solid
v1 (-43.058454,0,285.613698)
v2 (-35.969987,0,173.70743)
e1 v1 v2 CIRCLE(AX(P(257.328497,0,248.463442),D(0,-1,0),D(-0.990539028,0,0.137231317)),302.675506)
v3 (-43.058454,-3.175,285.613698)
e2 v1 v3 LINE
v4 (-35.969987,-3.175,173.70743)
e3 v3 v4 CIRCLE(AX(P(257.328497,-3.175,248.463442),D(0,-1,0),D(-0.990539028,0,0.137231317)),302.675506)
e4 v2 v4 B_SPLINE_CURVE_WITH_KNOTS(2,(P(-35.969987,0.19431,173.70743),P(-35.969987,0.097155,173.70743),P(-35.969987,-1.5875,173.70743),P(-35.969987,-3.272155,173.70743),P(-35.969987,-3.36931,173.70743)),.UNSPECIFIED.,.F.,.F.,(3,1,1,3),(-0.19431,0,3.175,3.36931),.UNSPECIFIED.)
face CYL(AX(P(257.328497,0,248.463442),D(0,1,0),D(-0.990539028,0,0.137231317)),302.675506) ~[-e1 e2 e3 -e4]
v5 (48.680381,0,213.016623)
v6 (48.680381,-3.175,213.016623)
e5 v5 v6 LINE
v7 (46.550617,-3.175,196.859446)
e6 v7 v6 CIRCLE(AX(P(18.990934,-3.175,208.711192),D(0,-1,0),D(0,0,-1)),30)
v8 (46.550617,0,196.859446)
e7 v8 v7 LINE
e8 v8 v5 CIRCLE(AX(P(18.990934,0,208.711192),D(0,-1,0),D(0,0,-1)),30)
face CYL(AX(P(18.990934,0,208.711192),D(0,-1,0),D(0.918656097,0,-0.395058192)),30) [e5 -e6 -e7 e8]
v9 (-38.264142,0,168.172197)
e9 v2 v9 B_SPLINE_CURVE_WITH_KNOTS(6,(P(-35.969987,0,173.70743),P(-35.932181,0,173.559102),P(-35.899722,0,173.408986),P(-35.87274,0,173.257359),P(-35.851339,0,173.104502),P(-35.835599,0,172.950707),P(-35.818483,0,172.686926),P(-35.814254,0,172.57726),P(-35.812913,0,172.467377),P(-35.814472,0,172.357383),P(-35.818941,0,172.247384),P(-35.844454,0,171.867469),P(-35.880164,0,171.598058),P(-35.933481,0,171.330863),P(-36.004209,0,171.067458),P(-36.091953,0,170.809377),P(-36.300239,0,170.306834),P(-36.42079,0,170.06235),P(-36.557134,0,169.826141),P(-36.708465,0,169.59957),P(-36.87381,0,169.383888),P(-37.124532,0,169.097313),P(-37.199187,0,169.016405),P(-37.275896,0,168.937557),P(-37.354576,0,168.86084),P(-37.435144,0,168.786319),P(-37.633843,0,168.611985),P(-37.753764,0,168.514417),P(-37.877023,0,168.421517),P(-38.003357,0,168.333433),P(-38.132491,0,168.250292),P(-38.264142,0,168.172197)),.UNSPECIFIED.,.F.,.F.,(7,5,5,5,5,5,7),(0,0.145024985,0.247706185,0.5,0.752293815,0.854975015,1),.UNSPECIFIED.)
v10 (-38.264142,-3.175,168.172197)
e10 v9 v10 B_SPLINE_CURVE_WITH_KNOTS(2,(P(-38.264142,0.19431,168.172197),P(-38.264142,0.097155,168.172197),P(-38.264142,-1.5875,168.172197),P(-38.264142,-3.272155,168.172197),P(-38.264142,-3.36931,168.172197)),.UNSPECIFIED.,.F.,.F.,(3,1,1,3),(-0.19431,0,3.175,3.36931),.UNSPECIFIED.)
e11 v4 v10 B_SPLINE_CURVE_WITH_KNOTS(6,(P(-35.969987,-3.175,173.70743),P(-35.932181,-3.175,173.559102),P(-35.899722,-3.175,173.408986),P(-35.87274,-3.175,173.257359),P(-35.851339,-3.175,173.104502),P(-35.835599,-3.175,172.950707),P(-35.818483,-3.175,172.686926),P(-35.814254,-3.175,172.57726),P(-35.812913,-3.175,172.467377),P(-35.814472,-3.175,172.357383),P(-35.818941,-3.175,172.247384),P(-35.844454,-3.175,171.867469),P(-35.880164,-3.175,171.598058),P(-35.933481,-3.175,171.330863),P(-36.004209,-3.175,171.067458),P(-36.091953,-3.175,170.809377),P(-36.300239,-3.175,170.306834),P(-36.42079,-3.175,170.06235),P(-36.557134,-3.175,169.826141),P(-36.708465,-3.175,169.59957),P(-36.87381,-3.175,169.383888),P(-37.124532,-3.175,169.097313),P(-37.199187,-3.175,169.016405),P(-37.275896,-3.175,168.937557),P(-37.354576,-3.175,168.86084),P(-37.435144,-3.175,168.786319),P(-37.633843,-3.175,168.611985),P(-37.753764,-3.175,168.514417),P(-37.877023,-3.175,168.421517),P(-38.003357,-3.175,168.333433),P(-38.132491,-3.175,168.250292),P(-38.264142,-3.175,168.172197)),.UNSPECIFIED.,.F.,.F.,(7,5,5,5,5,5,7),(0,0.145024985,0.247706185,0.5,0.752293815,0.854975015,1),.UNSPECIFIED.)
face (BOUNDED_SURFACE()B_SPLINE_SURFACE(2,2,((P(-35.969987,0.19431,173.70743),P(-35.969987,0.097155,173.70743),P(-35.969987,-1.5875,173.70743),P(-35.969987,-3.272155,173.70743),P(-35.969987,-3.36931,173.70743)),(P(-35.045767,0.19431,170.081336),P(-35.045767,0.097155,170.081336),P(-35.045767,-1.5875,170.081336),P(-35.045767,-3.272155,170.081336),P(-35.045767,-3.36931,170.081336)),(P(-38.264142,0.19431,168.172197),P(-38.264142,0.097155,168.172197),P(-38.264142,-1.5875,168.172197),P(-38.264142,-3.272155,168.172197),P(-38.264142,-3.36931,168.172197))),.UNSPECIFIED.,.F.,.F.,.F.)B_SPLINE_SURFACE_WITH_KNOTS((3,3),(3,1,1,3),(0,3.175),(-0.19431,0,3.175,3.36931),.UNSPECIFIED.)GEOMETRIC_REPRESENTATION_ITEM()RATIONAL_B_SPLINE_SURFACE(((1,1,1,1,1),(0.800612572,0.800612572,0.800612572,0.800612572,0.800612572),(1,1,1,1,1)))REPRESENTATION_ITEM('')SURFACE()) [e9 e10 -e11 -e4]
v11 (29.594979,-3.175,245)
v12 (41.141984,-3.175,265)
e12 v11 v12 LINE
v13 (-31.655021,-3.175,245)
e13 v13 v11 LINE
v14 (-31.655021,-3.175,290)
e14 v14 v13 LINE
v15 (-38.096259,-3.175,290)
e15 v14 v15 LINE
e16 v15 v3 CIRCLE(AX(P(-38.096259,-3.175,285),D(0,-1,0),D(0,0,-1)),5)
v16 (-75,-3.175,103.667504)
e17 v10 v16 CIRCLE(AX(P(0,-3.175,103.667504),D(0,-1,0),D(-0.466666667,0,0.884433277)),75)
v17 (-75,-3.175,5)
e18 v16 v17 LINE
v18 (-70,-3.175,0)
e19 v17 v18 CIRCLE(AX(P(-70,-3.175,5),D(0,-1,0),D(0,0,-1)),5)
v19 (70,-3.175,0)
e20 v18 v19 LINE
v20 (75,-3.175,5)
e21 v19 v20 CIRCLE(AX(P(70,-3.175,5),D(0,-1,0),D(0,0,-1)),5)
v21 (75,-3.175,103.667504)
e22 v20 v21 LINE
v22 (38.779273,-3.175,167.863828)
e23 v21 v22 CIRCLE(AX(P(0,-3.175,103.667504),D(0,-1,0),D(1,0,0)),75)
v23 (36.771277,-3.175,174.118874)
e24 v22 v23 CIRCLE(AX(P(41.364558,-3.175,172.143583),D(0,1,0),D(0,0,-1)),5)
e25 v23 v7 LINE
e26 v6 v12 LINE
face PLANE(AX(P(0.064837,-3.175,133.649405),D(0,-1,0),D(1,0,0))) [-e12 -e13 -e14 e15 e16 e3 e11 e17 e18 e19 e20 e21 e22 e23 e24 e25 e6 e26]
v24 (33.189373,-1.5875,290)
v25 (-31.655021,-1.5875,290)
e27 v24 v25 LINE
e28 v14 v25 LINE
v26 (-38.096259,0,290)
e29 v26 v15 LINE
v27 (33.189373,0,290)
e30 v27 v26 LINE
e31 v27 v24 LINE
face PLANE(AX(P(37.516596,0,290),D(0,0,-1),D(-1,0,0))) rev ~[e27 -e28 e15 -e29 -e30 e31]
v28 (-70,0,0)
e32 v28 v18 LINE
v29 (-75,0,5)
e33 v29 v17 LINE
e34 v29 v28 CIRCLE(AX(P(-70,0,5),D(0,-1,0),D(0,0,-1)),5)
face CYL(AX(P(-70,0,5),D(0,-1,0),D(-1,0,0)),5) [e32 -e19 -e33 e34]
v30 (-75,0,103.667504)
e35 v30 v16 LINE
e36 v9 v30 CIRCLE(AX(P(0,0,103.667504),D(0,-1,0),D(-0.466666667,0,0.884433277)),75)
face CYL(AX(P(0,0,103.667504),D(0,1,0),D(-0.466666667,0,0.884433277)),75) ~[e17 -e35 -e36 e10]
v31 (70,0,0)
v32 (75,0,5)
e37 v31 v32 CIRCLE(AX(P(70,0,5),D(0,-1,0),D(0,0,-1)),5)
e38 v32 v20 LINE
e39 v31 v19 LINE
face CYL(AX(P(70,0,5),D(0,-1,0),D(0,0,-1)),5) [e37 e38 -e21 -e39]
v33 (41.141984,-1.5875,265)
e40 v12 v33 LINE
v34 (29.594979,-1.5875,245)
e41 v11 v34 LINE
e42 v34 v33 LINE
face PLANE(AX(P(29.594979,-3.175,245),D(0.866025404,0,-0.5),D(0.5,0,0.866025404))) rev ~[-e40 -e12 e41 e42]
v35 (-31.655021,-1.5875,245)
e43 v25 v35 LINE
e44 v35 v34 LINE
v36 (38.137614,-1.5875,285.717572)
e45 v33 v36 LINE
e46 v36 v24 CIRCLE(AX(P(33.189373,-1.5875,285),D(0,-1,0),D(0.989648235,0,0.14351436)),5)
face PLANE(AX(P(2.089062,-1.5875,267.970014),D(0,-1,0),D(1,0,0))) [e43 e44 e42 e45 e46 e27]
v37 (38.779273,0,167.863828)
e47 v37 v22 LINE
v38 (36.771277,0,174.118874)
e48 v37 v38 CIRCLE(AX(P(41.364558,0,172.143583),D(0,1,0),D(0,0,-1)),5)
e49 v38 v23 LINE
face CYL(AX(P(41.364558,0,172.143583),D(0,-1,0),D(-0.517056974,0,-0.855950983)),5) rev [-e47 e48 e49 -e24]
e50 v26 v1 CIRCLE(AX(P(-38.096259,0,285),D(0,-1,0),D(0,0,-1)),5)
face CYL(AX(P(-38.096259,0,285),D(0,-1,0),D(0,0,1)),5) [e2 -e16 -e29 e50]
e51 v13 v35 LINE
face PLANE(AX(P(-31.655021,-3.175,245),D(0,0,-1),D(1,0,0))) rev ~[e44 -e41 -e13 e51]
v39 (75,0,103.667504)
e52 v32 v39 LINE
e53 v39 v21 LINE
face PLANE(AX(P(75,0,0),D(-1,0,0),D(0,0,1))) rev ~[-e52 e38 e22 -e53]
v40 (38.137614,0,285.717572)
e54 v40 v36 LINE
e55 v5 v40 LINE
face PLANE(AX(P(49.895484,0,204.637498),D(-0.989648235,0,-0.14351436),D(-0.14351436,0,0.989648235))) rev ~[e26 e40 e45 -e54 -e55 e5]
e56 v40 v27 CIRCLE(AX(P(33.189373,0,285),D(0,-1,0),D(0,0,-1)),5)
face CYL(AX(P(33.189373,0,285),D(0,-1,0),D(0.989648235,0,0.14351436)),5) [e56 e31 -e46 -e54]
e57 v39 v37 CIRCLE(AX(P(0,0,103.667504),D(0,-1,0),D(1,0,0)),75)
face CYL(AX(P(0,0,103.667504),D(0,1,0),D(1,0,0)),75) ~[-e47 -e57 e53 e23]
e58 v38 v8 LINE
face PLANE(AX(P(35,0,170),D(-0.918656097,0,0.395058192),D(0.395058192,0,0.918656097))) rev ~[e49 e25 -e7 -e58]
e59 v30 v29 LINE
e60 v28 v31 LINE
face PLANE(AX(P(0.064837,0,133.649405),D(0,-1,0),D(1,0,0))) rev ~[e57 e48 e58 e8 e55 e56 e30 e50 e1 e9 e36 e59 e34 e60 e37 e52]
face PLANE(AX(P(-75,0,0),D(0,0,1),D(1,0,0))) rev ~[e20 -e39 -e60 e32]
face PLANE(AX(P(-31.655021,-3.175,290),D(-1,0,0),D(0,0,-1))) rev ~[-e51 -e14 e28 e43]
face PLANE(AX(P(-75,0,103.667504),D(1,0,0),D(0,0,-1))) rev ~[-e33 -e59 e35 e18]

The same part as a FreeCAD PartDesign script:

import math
import FreeCAD as App
import Part
import Sketcher
from FreeCAD import Vector
Q = App.Units.Quantity


def edges_at(feature, points):
    """Names of the edges that pass closest to the given points."""
    edges = feature.Shape.Edges
    near = lambda p: min(range(len(edges)), key=lambda i: edges[i].distToShape(Part.Vertex(*p))[0])
    return sorted({f"Edge{near(p) + 1}" for p in points})

doc = App.newDocument("Part")
body = doc.addObject("PartDesign::Body", "Body")

sketch1 = doc.addObject("Sketcher::SketchObject", "Sketch")
body.addObject(sketch1)
sketch1.AttachmentSupport = (doc.XZ_Plane, [""])
sketch1.MapMode = "FlatFace"
sketch1.addGeometry([
    Part.LineSegment(Vector(-75, 104, 0), Vector(-75, 0, 0)),
    Part.LineSegment(Vector(-75, 0, 0), Vector(75, 0, 0)),
    Part.LineSegment(Vector(75, 0, 0), Vector(75, 104, 0)),
    Part.ArcOfCircle(Part.Circle(Vector(0, 104, 0), Vector(0, 0, 1), 75), math.radians(0), math.radians(62)),
    Part.LineSegment(Vector(35, 170, 0), Vector(50, 205, 0)),
    Part.LineSegment(Vector(50, 205, 0), Vector(38, 290, 0)),
    Part.LineSegment(Vector(38, 290, 0), Vector(-42, 290, 0)),
    Part.ArcOfCircle(Part.Circle(Vector(257, 248, 0), Vector(0, 0, 1), 303), math.radians(172), math.radians(195)),
    Part.ArcOfCircle(Part.Circle(Vector(0, 104, 0), Vector(0, 0, 1), 75), math.radians(118), math.radians(180)),
], False)
sketch1.addConstraint([
    Sketcher.Constraint("Coincident", 0, 2, 1, 1),
    Sketcher.Constraint("Coincident", 1, 2, 2, 1),
    Sketcher.Constraint("Tangent", 2, 2, 3, 1),
    Sketcher.Constraint("Coincident", 3, 2, 4, 1),
    Sketcher.Constraint("Coincident", 4, 2, 5, 1),
    Sketcher.Constraint("Coincident", 5, 2, 6, 1),
    Sketcher.Constraint("Coincident", 6, 2, 7, 1),
    Sketcher.Constraint("Coincident", 7, 2, 8, 1),
    Sketcher.Constraint("Tangent", 8, 2, 0, 1),
    Sketcher.Constraint("Vertical", 0),
    Sketcher.Constraint("Horizontal", 1),
    Sketcher.Constraint("Vertical", 2),
    Sketcher.Constraint("Horizontal", 6),
    Sketcher.Constraint("Coincident", 8, 3, 3, 3),
    Sketcher.Constraint("Equal", 3, 8),
    Sketcher.Constraint("Symmetric", 0, 2, 1, 2, -1, 1),
    Sketcher.Constraint("Horizontal", 3, 2, 7, 2),
    Sketcher.Constraint("Radius", 3, Q("75 mm")),
    Sketcher.Constraint("DistanceX", 6, 2, 6, 1, Q("80 mm")),
    Sketcher.Constraint("DistanceX", -1, 1, 3, 2, Q("35 mm")),
    Sketcher.Constraint("DistanceY", -1, 1, 3, 2, Q("170 mm")),
    Sketcher.Constraint("DistanceY", -1, 1, 5, 2, Q("290 mm")),
    Sketcher.Constraint("Radius", 7, Q("302.675506 mm")),
    Sketcher.Constraint("Distance", 4, Q("37.704531 mm")),
    Sketcher.Constraint("DistanceY", -1, 1, 7, 3, Q("248.463442 mm")),
    Sketcher.Constraint("DistanceX", 5, 2, 4, 2, Q("12.378888 mm")),
])
pad1 = doc.addObject("PartDesign::Pad", "Pad")
body.addObject(pad1)
pad1.Profile = sketch1
pad1.Length = 3.175
doc.recompute()

fillet = doc.addObject("PartDesign::Fillet", "Fillet")
body.addObject(fillet)
fillet.Base = (pad1, edges_at(pad1, [
    (-35, -1.587, 170),
    (-42.483, -1.587, 290),
    (37.517, -1.587, 290),
    (75, -1.587, 0),
    (-75, -1.587, 0),
    (35, -1.587, 170),
]))
fillet.Radius = 5
doc.recompute()

fillet2 = doc.addObject("PartDesign::Fillet", "Fillet001")
body.addObject(fillet2)
fillet2.Base = (fillet, edges_at(fillet, [(49.895, -1.587, 204.637)]))
fillet2.Radius = 30

sketch2 = doc.addObject("Sketcher::SketchObject", "Sketch001")
body.addObject(sketch2)
sketch2.AttachmentSupport = (doc.XZ_Plane, [""])
sketch2.MapMode = "FlatFace"
sketch2.AttachmentOffset = App.Placement(Vector(0, 0, 3.175), App.Rotation())
sketch2.addGeometry([
    Part.LineSegment(Vector(33, 290, 0), Vector(-32, 290, 0)),
    Part.LineSegment(Vector(-32, 290, 0), Vector(-32, 245, 0)),
    Part.LineSegment(Vector(-32, 245, 0), Vector(30, 245, 0)),
    Part.LineSegment(Vector(30, 245, 0), Vector(41, 265, 0)),
    Part.LineSegment(Vector(41, 265, 0), Vector(38, 286, 0)),
    Part.ArcOfCircle(Part.Circle(Vector(33, 285, 0), Vector(0, 0, 1), 5), math.radians(8), math.radians(90)),
], False)
sketch2.addConstraint([
    Sketcher.Constraint("Coincident", 0, 2, 1, 1),
    Sketcher.Constraint("Coincident", 1, 2, 2, 1),
    Sketcher.Constraint("Coincident", 2, 2, 3, 1),
    Sketcher.Constraint("Coincident", 3, 2, 4, 1),
    Sketcher.Constraint("Tangent", 4, 2, 5, 1),
    Sketcher.Constraint("Tangent", 5, 2, 0, 1),
    Sketcher.Constraint("Horizontal", 0),
    Sketcher.Constraint("Vertical", 1),
    Sketcher.Constraint("Horizontal", 2),
    Sketcher.Constraint("Radius", 5, Q("5 mm")),
    Sketcher.Constraint("DistanceY", 1, 2, 1, 1, Q("45 mm")),
    Sketcher.Constraint("Angle", 3, Q("60 deg")),
    Sketcher.Constraint("DistanceY", -1, 1, 5, 3, Q("285 mm")),
    Sketcher.Constraint("DistanceY", -1, 1, 3, 2, Q("265 mm")),
    Sketcher.Constraint("DistanceX", 2, 1, 2, 2, Q("61.25 mm")),
    Sketcher.Constraint("Distance", 4, Q("20.934279 mm")),
    Sketcher.Constraint("DistanceX", 0, 2, -1, 1, Q("31.655021 mm")),
])
pocket1 = doc.addObject("PartDesign::Pocket", "Pocket")
body.addObject(pocket1)
pocket1.Profile = sketch2
pocket1.Length = 1.5875

doc.recompute()
